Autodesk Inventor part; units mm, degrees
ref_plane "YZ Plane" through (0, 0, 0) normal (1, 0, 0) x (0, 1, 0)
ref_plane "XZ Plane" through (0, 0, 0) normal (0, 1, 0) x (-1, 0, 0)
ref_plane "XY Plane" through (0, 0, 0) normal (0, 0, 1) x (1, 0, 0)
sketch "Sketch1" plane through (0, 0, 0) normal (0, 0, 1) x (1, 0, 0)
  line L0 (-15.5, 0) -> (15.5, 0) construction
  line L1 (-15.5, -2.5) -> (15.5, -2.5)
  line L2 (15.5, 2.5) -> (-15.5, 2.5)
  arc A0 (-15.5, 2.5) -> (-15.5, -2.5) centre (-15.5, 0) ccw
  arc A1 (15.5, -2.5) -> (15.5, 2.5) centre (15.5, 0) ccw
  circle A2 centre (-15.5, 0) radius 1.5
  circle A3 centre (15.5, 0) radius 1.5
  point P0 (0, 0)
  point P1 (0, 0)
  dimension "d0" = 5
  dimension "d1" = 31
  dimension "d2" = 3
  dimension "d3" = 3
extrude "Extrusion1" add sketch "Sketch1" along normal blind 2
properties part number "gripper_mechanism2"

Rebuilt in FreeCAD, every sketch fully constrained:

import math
import FreeCAD as App
import Part
import Sketcher
from FreeCAD import Vector
Q = App.Units.Quantity

doc = App.newDocument("Part")
body = doc.addObject("PartDesign::Body", "Body")

# Sketch on XY plane
sketch1 = body.newObject("Sketcher::SketchObject", "Sketch")
sketch1.AttachmentSupport = (doc.getObject("XY_Plane"), [""])
sketch1.MapMode = "FlatFace"
sketch1.addGeometry([
    Part.ArcOfCircle(Part.Circle(Vector(-15.5, 0, 0), Vector(0, 0, 1), 2.5), math.radians(90), math.radians(270)),  # 0
    Part.LineSegment(Vector(-15.5, -2.5, 0), Vector(15.5, -2.5, 0)),  # 1
    Part.ArcOfCircle(Part.Circle(Vector(15.5, 0, 0), Vector(0, 0, 1), 2.5), math.radians(-90), math.radians(90)),  # 2
    Part.LineSegment(Vector(15.5, 2.5, 0), Vector(-15.5, 2.5, 0)),  # 3
    Part.Circle(Vector(-15.5, 0, 0), Vector(0, 0, 1), 1.5),  # 4
    Part.Circle(Vector(15.5, 0, 0), Vector(0, 0, 1), 1.5),  # 5
], False)
sketch1.addConstraint([
    Sketcher.Constraint("Tangent", 0, 2, 1, 1),
    Sketcher.Constraint("Tangent", 1, 2, 2, 1),
    Sketcher.Constraint("Tangent", 2, 2, 3, 1),
    Sketcher.Constraint("Tangent", 3, 2, 0, 1),
    Sketcher.Constraint("Horizontal", 1),
    Sketcher.Constraint("Horizontal", 3),
    Sketcher.Constraint("Coincident", 4, 3, 0, 3),
    Sketcher.Constraint("Coincident", 5, 3, 2, 3),
    Sketcher.Constraint("Equal", 4, 5),
    Sketcher.Constraint("Symmetric", 0, 3, 2, 3, -1, 1),
    Sketcher.Constraint("Diameter", 4, Q("3 mm")),
    Sketcher.Constraint("Radius", 0, Q("2.5 mm")),
    Sketcher.Constraint("DistanceX", 1, 1, 1, 2, Q("31 mm")),
])
pad1 = body.newObject("PartDesign::Pad", "Pad")
pad1.Profile = sketch1
pad1.Length = 2

doc.recompute()
